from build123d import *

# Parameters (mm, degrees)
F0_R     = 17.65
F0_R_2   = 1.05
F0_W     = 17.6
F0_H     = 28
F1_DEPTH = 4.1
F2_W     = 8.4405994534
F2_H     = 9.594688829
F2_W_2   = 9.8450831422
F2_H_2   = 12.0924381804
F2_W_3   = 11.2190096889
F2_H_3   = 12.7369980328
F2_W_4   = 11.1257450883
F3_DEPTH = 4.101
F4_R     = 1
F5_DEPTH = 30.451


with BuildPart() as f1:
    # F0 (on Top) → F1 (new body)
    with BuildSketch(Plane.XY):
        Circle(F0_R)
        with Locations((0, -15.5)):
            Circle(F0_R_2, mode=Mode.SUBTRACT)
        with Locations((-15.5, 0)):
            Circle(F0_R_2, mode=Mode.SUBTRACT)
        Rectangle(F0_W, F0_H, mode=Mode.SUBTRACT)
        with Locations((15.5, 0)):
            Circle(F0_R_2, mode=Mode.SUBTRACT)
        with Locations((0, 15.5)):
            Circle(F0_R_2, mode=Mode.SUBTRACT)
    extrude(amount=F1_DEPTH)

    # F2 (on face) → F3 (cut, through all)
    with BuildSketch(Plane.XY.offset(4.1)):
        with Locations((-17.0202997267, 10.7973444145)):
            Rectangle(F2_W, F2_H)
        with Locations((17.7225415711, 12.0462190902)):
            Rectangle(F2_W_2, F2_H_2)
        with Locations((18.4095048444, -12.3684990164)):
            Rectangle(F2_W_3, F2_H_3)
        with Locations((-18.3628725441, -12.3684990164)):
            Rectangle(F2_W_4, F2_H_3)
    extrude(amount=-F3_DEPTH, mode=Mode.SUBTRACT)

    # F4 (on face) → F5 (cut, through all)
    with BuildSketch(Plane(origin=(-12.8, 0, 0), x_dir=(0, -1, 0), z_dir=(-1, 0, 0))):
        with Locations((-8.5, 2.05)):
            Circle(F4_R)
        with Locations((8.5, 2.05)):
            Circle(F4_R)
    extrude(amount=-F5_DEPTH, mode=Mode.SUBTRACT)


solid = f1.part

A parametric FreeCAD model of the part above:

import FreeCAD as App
import Part
import Sketcher

V = App.Vector

doc = App.newDocument("Part")
body = doc.addObject("PartDesign::Body", "Body")

# Sketch on XY plane
sketch1 = body.newObject("Sketcher::SketchObject", "Sketch")
sketch1.AttachmentSupport = (doc.getObject("XY_Plane"), [""])
sketch1.MapMode = "FlatFace"
sketch1.addGeometry([
    Part.Circle(V(0, 0, 0), V(0, 0, 1), 17.6),  # 0
    Part.Circle(V(0, -15.5, 0), V(0, 0, 1), 1.1),  # 1
    Part.Circle(V(-15.5, 0, 0), V(0, 0, 1), 1.1),  # 2
    Part.LineSegment(V(8.8, -14, 0), V(-8.8, -14, 0)),  # 3
    Part.LineSegment(V(-8.8, -14, 0), V(-8.8, 14, 0)),  # 4
    Part.LineSegment(V(-8.8, 14, 0), V(8.8, 14, 0)),  # 5
    Part.LineSegment(V(8.8, 14, 0), V(8.8, -14, 0)),  # 6
    Part.Circle(V(15.5, 0, 0), V(0, 0, 1), 1.1),  # 7
    Part.Circle(V(0, 15.5, 0), V(0, 0, 1), 1.1),  # 8
], False)
sketch1.addConstraint([
    Sketcher.Constraint("Coincident", 3, 2, 4, 1),
    Sketcher.Constraint("Coincident", 4, 2, 5, 1),
    Sketcher.Constraint("Coincident", 5, 2, 6, 1),
    Sketcher.Constraint("Coincident", 6, 2, 3, 1),
    Sketcher.Constraint("Horizontal", 3),
    Sketcher.Constraint("Vertical", 4),
    Sketcher.Constraint("Horizontal", 5),
    Sketcher.Constraint("Vertical", 6),
    Sketcher.Constraint("Coincident", 0, 3, -1, 1),
    Sketcher.Constraint("Equal", 1, 2),
    Sketcher.Constraint("Equal", 2, 7),
    Sketcher.Constraint("Equal", 7, 8),
    Sketcher.Constraint("Symmetric", 2, 3, 7, 3, -1, 1),
    Sketcher.Constraint("Symmetric", 1, 3, 8, 3, -1, 1),
    Sketcher.Constraint("Symmetric", 3, 2, 5, 2, -1, 1),
    Sketcher.Constraint("PointOnObject", 1, 3, -2),
    Sketcher.Constraint("PointOnObject", 2, 3, -1),
    Sketcher.Constraint("Diameter", 0, 35.3),
    Sketcher.Constraint("Diameter", 1, 2.1),
    Sketcher.Constraint("DistanceY", 4, 1, 4, 2, 28.0),
    Sketcher.Constraint("DistanceX", 3, 2, 3, 1, 17.6),
    Sketcher.Constraint("DistanceX", 2, 3, 7, 3, 31.0),
    Sketcher.Constraint("DistanceY", 1, 3, 8, 3, 31.0),
])
pad1 = body.newObject("PartDesign::Pad", "Pad")
pad1.Profile = sketch1
pad1.Length = 4.1

# Sketch on XY plane
sketch2 = body.newObject("Sketcher::SketchObject", "Sketch001")
sketch2.AttachmentSupport = (doc.getObject("XY_Plane"), [""])
sketch2.MapMode = "FlatFace"
sketch2.AttachmentOffset = App.Placement(V(0, 0, 4.1), App.Rotation())
sketch2.addGeometry([
    Part.LineSegment(V(-21, 16, 0), V(-21, 6, 0)),  # 0
    Part.LineSegment(V(-21, 6, 0), V(-13, 6, 0)),  # 1
    Part.LineSegment(V(-13, 6, 0), V(-13, 16, 0)),  # 2
    Part.LineSegment(V(-13, 16, 0), V(-21, 16, 0)),  # 3
    Part.LineSegment(V(13, 18, 0), V(13, 6, 0)),  # 4
    Part.LineSegment(V(13, 6, 0), V(23, 6, 0)),  # 5
    Part.LineSegment(V(23, 6, 0), V(23, 18, 0)),  # 6
    Part.LineSegment(V(23, 18, 0), V(13, 18, 0)),  # 7
    Part.LineSegment(V(13, -6, 0), V(13, -19, 0)),  # 8
    Part.LineSegment(V(13, -19, 0), V(24, -19, 0)),  # 9
    Part.LineSegment(V(24, -19, 0), V(24, -6, 0)),  # 10
    Part.LineSegment(V(24, -6, 0), V(13, -6, 0)),  # 11
    Part.LineSegment(V(-24, -6, 0), V(-24, -19, 0)),  # 12
    Part.LineSegment(V(-24, -19, 0), V(-13, -19, 0)),  # 13
    Part.LineSegment(V(-13, -19, 0), V(-13, -6, 0)),  # 14
    Part.LineSegment(V(-13, -6, 0), V(-24, -6, 0)),  # 15
], False)
sketch2.addConstraint([
    Sketcher.Constraint("Coincident", 0, 2, 1, 1),
    Sketcher.Constraint("Coincident", 1, 2, 2, 1),
    Sketcher.Constraint("Coincident", 2, 2, 3, 1),
    Sketcher.Constraint("Coincident", 3, 2, 0, 1),
    Sketcher.Constraint("Coincident", 4, 2, 5, 1),
    Sketcher.Constraint("Coincident", 5, 2, 6, 1),
    Sketcher.Constraint("Coincident", 6, 2, 7, 1),
    Sketcher.Constraint("Coincident", 7, 2, 4, 1),
    Sketcher.Constraint("Coincident", 8, 2, 9, 1),
    Sketcher.Constraint("Coincident", 9, 2, 10, 1),
    Sketcher.Constraint("Coincident", 10, 2, 11, 1),
    Sketcher.Constraint("Coincident", 11, 2, 8, 1),
    Sketcher.Constraint("Coincident", 12, 2, 13, 1),
    Sketcher.Constraint("Coincident", 13, 2, 14, 1),
    Sketcher.Constraint("Coincident", 14, 2, 15, 1),
    Sketcher.Constraint("Coincident", 15, 2, 12, 1),
    Sketcher.Constraint("Vertical", 0),
    Sketcher.Constraint("Horizontal", 1),
    Sketcher.Constraint("Vertical", 2),
    Sketcher.Constraint("Horizontal", 3),
    Sketcher.Constraint("Vertical", 4),
    Sketcher.Constraint("Horizontal", 5),
    Sketcher.Constraint("Vertical", 6),
    Sketcher.Constraint("Horizontal", 7),
    Sketcher.Constraint("Vertical", 8),
    Sketcher.Constraint("Horizontal", 9),
    Sketcher.Constraint("Vertical", 10),
    Sketcher.Constraint("Horizontal", 11),
    Sketcher.Constraint("Vertical", 12),
    Sketcher.Constraint("Horizontal", 13),
    Sketcher.Constraint("Vertical", 14),
    Sketcher.Constraint("Horizontal", 15),
    Sketcher.Constraint("Symmetric", 1, 2, 11, 2, -1, 1),
    Sketcher.Constraint("Symmetric", 4, 2, 14, 2, -1, 1),
    Sketcher.Constraint("Symmetric", 1, 2, 4, 2, -2),
    Sketcher.Constraint("Horizontal", 9, 2, 12, 2),
    Sketcher.Constraint("DistanceY", -1, 1, 0, 2, 6.0),
    Sketcher.Constraint("DistanceX", 1, 2, -1, 1, 12.8),
    Sketcher.Constraint("DistanceY", 8, 2, 8, 1, 12.736998),
    Sketcher.Constraint("DistanceX", 1, 1, 1, 2, 8.440599),
    Sketcher.Constraint("DistanceX", 9, 1, 9, 2, 11.21901),
    Sketcher.Constraint("DistanceY", 0, 2, 0, 1, 9.594689),
    Sketcher.Constraint("DistanceY", 4, 2, 4, 1, 12.092438),
    Sketcher.Constraint("DistanceX", 5, 1, 5, 2, 9.845083),
    Sketcher.Constraint("DistanceX", 13, 1, 13, 2, 11.125745),
])
pocket1 = body.newObject("PartDesign::Pocket", "Pocket")
pocket1.Profile = sketch2
pocket1.Type = "ThroughAll"

# Sketch on YZ plane
sketch3 = body.newObject("Sketcher::SketchObject", "Sketch002")
sketch3.AttachmentSupport = (doc.getObject("YZ_Plane"), [""])
sketch3.MapMode = "FlatFace"
sketch3.AttachmentOffset = App.Placement(V(0, 0, -12.8), App.Rotation())
sketch3.addGeometry([
    Part.Circle(V(8.5, 2, 0), V(0, 0, 1), 1),
    Part.Circle(V(-8.5, 2, 0), V(0, 0, 1), 1),
], False)
sketch3.addConstraint([
    Sketcher.Constraint("Equal", 0, 1),
    Sketcher.Constraint("Symmetric", 0, 3, 1, 3, -2),
    Sketcher.Constraint("Diameter", 0, 2.0),
    Sketcher.Constraint("DistanceX", 1, 3, 0, 3, 17.0),
    Sketcher.Constraint("DistanceY", -1, 1, 0, 3, 2.05),
])
pocket2 = body.newObject("PartDesign::Pocket", "Pocket001")
pocket2.Profile = sketch3
pocket2.Type = "ThroughAll"
pocket2.Reversed = True

doc.recompute()
